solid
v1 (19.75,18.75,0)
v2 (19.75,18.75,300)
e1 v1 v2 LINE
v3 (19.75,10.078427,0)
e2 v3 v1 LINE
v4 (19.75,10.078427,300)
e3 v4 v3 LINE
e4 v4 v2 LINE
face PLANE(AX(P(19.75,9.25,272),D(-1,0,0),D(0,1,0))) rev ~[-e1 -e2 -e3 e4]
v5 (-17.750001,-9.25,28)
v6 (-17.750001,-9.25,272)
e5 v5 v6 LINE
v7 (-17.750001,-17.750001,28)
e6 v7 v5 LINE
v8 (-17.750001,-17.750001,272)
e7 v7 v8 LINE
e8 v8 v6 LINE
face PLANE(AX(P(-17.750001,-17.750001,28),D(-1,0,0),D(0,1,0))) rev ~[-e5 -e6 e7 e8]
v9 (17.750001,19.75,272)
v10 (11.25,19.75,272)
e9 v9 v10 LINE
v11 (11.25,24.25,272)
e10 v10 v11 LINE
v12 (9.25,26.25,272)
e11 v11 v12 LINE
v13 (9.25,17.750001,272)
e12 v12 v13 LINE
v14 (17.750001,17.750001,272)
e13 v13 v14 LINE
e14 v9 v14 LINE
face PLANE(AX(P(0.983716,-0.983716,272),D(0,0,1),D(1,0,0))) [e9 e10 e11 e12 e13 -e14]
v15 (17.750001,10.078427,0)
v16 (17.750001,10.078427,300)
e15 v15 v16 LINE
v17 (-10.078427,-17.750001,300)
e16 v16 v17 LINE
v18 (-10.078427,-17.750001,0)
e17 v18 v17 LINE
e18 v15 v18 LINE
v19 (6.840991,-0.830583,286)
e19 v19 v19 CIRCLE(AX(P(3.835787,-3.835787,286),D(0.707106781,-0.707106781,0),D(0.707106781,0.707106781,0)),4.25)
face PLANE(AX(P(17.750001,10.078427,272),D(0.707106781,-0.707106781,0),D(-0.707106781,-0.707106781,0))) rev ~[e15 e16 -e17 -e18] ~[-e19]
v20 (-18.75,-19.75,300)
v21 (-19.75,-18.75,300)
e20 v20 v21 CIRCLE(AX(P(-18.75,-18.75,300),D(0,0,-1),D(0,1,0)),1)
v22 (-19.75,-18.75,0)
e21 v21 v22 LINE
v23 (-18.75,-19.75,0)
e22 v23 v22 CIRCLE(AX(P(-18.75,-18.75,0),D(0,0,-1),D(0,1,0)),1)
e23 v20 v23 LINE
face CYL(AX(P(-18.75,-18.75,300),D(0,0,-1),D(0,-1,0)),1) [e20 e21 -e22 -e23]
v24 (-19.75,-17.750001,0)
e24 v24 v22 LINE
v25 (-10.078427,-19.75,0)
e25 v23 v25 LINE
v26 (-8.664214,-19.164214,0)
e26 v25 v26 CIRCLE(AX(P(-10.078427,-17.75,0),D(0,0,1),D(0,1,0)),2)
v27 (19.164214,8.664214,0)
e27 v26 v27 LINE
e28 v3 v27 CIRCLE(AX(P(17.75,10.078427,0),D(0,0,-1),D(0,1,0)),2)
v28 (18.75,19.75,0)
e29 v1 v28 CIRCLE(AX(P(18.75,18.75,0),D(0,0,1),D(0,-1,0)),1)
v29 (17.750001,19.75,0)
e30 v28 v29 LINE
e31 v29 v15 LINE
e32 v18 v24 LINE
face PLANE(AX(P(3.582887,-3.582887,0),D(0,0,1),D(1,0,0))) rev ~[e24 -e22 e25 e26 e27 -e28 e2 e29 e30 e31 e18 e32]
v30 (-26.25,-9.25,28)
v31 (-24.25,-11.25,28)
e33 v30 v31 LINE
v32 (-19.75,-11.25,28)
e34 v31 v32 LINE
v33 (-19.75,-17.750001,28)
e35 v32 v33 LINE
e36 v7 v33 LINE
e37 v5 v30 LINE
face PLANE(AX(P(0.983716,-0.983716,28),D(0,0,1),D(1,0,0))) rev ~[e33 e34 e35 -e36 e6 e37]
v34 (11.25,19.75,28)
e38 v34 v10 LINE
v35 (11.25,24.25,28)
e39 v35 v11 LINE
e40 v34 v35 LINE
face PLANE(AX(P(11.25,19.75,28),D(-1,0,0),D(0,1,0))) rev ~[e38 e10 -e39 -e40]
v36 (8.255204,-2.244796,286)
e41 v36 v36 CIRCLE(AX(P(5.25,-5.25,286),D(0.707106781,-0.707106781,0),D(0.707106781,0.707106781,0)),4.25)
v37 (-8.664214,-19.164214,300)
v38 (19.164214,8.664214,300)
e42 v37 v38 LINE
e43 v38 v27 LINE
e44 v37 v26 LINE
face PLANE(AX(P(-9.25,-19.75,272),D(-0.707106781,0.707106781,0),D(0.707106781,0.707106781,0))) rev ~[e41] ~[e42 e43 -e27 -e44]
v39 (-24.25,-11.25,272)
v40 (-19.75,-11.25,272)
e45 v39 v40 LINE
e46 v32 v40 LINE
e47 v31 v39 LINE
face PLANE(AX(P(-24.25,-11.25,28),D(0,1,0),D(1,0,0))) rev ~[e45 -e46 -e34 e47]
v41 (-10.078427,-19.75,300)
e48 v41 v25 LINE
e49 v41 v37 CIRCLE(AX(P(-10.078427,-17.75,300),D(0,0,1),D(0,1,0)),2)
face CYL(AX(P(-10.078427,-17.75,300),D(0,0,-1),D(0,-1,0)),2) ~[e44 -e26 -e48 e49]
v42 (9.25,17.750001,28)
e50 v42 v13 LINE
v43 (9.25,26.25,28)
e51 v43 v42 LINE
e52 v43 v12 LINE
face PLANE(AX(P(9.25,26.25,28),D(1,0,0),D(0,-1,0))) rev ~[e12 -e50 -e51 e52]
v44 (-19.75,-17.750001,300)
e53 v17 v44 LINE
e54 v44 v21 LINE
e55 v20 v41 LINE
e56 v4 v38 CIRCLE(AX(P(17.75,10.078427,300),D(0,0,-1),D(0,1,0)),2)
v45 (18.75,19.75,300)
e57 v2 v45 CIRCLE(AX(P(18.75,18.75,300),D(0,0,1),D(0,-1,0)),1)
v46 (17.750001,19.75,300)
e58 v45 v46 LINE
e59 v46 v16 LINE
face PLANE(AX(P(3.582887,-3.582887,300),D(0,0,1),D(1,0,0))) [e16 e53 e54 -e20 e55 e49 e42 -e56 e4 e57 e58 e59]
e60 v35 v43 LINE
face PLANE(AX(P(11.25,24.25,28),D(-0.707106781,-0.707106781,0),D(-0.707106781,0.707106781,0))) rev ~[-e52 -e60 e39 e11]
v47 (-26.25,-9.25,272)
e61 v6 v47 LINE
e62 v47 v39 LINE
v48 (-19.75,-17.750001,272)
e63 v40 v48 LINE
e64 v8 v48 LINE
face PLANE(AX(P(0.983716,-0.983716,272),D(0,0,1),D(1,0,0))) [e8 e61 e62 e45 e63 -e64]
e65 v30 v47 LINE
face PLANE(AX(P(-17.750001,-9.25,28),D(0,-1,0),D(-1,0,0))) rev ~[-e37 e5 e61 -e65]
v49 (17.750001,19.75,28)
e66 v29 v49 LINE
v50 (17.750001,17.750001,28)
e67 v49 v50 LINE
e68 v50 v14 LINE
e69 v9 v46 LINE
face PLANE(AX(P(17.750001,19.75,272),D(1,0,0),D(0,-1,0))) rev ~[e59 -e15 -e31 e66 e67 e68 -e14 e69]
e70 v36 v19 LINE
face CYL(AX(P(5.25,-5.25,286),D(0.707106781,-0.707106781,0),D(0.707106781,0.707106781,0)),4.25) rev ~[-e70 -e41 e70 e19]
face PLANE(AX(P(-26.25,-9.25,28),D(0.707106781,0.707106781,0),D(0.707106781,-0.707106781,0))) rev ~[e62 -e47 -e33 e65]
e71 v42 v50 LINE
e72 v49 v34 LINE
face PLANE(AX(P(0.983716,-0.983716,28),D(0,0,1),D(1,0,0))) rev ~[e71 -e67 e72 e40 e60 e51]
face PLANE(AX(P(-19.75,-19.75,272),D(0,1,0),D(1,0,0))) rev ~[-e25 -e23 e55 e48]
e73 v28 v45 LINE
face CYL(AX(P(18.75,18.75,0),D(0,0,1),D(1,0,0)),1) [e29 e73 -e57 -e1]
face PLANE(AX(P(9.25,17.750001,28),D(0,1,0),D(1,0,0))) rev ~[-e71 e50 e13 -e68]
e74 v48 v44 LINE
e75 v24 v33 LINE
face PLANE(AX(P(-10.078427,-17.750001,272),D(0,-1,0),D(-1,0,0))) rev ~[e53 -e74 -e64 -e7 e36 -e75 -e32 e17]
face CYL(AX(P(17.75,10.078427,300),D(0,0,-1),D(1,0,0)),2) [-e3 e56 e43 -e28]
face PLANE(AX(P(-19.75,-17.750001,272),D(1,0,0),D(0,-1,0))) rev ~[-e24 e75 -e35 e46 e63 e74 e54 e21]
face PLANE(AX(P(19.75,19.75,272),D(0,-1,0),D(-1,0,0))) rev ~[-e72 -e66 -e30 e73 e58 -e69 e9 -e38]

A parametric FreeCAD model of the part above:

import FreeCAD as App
import Part
import Sketcher
Q = App.Units.Quantity


def edges_at(feature, points):
    """Names of the edges that pass closest to the given points."""
    edges = feature.Shape.Edges
    near = lambda p: min(range(len(edges)), key=lambda i: edges[i].distToShape(Part.Vertex(*p))[0])
    return sorted({f"Edge{near(p) + 1}" for p in points})


def add_polygon(sketch, points):
    """Adds a closed chain of lines whose ends are joined by coincident constraints."""
    first, n = sketch.GeometryCount, len(points)
    for a, b in zip(points, points[1:] + points[:1]):
        sketch.addGeometry(Part.LineSegment(App.Vector(*a, 0), App.Vector(*b, 0)), False)
    for i in range(n):
        sketch.addConstraint(Sketcher.Constraint("Coincident", first + i, 2, first + (i + 1) % n, 1))

doc = App.newDocument("Part")
params = doc.addObject("Spreadsheet::Sheet", "Params")
for row, (alias, value) in enumerate([
    ("sketch1_width", "1.999999 mm"),
    ("sketch1_width2", "10.5 mm"),
    ("pad1_length", "28 mm"),
    ("sketch2_width", "10.5 mm"),
    ("sketch2_width2", "8.5 mm"),
    ("sketch2_width3", "4.5 mm"),
    ("pad2_length", "244 mm"),
    ("sketch3_width", "1.999999 mm"),
    ("sketch3_width2", "10.5 mm"),
    ("pad3_length", "28 mm"),
    ("fillet_radius", "2 mm"),
    ("fillet2_radius", "1 mm"),
    ("sketch4_diameter", "8.5 mm"),
    ("pocket1_length", "25 mm"),
], start=1):
    params.set(f"A{row}", alias)
    params.set(f"B{row}", "=" + value)
    params.setAlias(f"B{row}", alias)

body = doc.addObject("PartDesign::Body", "Body")

# Sketch on XY plane
sketch1 = body.newObject("Sketcher::SketchObject", "Sketch")
sketch1.AttachmentSupport = (doc.getObject("XY_Plane"), [""])
sketch1.MapMode = "FlatFace"
add_polygon(sketch1, [(-19.8, -17.8), (-19.8, -19.8), (-9.2, -19.8), (19.8, 9.2), (19.8, 19.8), (17.8, 19.8), (17.8, 10.1), (-10.1, -17.8)])  # lines 0-7
sketch1.addConstraint([
    Sketcher.Constraint("Vertical", 0),
    Sketcher.Constraint("Horizontal", 1),
    Sketcher.Constraint("Vertical", 3),
    Sketcher.Constraint("Horizontal", 4),
    Sketcher.Constraint("Vertical", 5),
    Sketcher.Constraint("Horizontal", 7),
    Sketcher.Constraint("Symmetric", 0, 2, 3, 2, -1, 1),
    Sketcher.Constraint("Parallel", 2, 6),
    Sketcher.Constraint("Equal", 4, 0),
    Sketcher.Constraint("Equal", 1, 3),
    Sketcher.Constraint("Equal", 7, 5),
    Sketcher.Constraint("DistanceX", 4, 2, 4, 1, Q("1.999999 mm")),
    Sketcher.Constraint("DistanceX", 1, 1, 1, 2, Q("10.5 mm")),
    Sketcher.Constraint("DistanceX", 1, 2, 2, 2, Q("29 mm")),
    Sketcher.Constraint("Distance", 6, Q("39.35534 mm")),
])
sketch1.setExpression("Constraints[19]", "Params.sketch1_width")
sketch1.setExpression("Constraints[20]", "Params.sketch1_width2")
pad1 = body.newObject("PartDesign::Pad", "Pad")
pad1.Profile = sketch1
pad1.setExpression("Length", "Params.pad1_length")

# Sketch on XY plane
sketch2 = body.newObject("Sketcher::SketchObject", "Sketch001")
sketch2.AttachmentSupport = (doc.getObject("XY_Plane"), [""])
sketch2.MapMode = "FlatFace"
sketch2.AttachmentOffset = App.Placement(App.Vector(0, 0, 28), App.Rotation())
add_polygon(sketch2, [(-19.8, -19.8), (-9.2, -19.8), (19.8, 9.2), (19.8, 19.8), (11.2, 19.8), (11.2, 24.2), (9.2, 26.2), (9.2, 17.8), (17.8, 17.8), (17.8, 10.1), (-10.1, -17.8), (-17.8, -17.8), (-17.8, -9.2), (-26.2, -9.2), (-24.2, -11.2), (-19.8, -11.2)])  # lines 0-15
sketch2.addConstraint([
    Sketcher.Constraint("Horizontal", 0),
    Sketcher.Constraint("Vertical", 2),
    Sketcher.Constraint("Horizontal", 3),
    Sketcher.Constraint("Vertical", 4),
    Sketcher.Constraint("Vertical", 6),
    Sketcher.Constraint("Horizontal", 7),
    Sketcher.Constraint("Vertical", 8),
    Sketcher.Constraint("Horizontal", 10),
    Sketcher.Constraint("Vertical", 11),
    Sketcher.Constraint("Horizontal", 12),
    Sketcher.Constraint("Horizontal", 14),
    Sketcher.Constraint("Vertical", 15),
    Sketcher.Constraint("Symmetric", 7, 2, 10, 2, -1, 1),
    Sketcher.Constraint("Symmetric", 2, 2, 15, 2, -1, 1),
    Sketcher.Constraint("Perpendicular", 1, 5),
    Sketcher.Constraint("Perpendicular", 5, 9),
    Sketcher.Constraint("Perpendicular", 9, 13),
    Sketcher.Constraint("Equal", 3, 7),
    Sketcher.Constraint("Equal", 3, 12),
    Sketcher.Constraint("Equal", 0, 2),
    Sketcher.Constraint("Equal", 14, 4),
    Sketcher.Constraint("Equal", 12, 6),
    Sketcher.Constraint("Equal", 10, 8),
    Sketcher.Constraint("Equal", 7, 11),
    Sketcher.Constraint("Equal", 11, 15),
    Sketcher.Constraint("DistanceX", 0, 1, 0, 2, Q("10.5 mm")),
    Sketcher.Constraint("DistanceX", 3, 2, 3, 1, Q("8.5 mm")),
    Sketcher.Constraint("DistanceX", 14, 1, 14, 2, Q("4.5 mm")),
    Sketcher.Constraint("DistanceX", 0, 2, 1, 2, Q("29 mm")),
    Sketcher.Constraint("Distance", 9, Q("39.35534 mm")),
])
sketch2.setExpression("Constraints[41]", "Params.sketch2_width")
sketch2.setExpression("Constraints[42]", "Params.sketch2_width2")
sketch2.setExpression("Constraints[43]", "Params.sketch2_width3")
pad2 = body.newObject("PartDesign::Pad", "Pad001")
pad2.Profile = sketch2
pad2.setExpression("Length", "Params.pad2_length")

# Sketch on XY plane
sketch3 = body.newObject("Sketcher::SketchObject", "Sketch002")
sketch3.AttachmentSupport = (doc.getObject("XY_Plane"), [""])
sketch3.MapMode = "FlatFace"
sketch3.AttachmentOffset = App.Placement(App.Vector(0, 0, 272), App.Rotation())
add_polygon(sketch3, [(19.8, 9.2), (19.8, 19.8), (17.8, 19.8), (17.8, 10.1), (-10.1, -17.8), (-19.8, -17.8), (-19.8, -19.8), (-9.2, -19.8)])  # lines 0-7
sketch3.addConstraint([
    Sketcher.Constraint("Vertical", 0),
    Sketcher.Constraint("Horizontal", 1),
    Sketcher.Constraint("Vertical", 2),
    Sketcher.Constraint("Horizontal", 4),
    Sketcher.Constraint("Vertical", 5),
    Sketcher.Constraint("Horizontal", 6),
    Sketcher.Constraint("Symmetric", 0, 2, 5, 2, -1, 1),
    Sketcher.Constraint("Parallel", 3, 7),
    Sketcher.Constraint("Equal", 6, 0),
    Sketcher.Constraint("Equal", 4, 2),
    Sketcher.Constraint("Equal", 1, 5),
    Sketcher.Constraint("DistanceX", 1, 2, 1, 1, Q("1.999999 mm")),
    Sketcher.Constraint("DistanceX", 6, 1, 6, 2, Q("10.5 mm")),
    Sketcher.Constraint("DistanceX", 6, 2, 2, 2, Q("27.000001 mm")),
    Sketcher.Constraint("Distance", 3, Q("39.35534 mm")),
])
sketch3.setExpression("Constraints[19]", "Params.sketch3_width")
sketch3.setExpression("Constraints[20]", "Params.sketch3_width2")
pad3 = body.newObject("PartDesign::Pad", "Pad002")
pad3.Profile = sketch3
pad3.setExpression("Length", "Params.pad3_length")
doc.recompute()

fillet = body.newObject("PartDesign::Fillet", "Fillet")
fillet.Base = (pad3, edges_at(pad3, [(19.75, 9.25, 150), (-9.25, -19.75, 150)]))
fillet.setExpression("Radius", "Params.fillet_radius")
doc.recompute()

fillet2 = body.newObject("PartDesign::Fillet", "Fillet001")
fillet2.Base = (fillet, edges_at(fillet, [(-19.75, -19.75, 150), (19.75, 19.75, 150)]))
fillet2.setExpression("Radius", "Params.fillet2_radius")

# Sketch on an angled plane
sketch4 = body.newObject("Sketcher::SketchObject", "Sketch003")
sketch4.Placement = App.Placement(App.Vector(5.25, -5.25, 0), App.Rotation(App.Vector(0.707106781, 0.707106781, 0), App.Vector(0, 0, 0.999999999), App.Vector(0.707106781, -0.707106781, 0), "ZXY"))
sketch4.addGeometry(Part.Circle(App.Vector(0, 286, 0), App.Vector(0, 0, 1), 4.2), False)
sketch4.addConstraint([
    Sketcher.Constraint("PointOnObject", 0, 3, -2),
    Sketcher.Constraint("Diameter", 0, Q("8.5 mm")),
    Sketcher.Constraint("DistanceY", -1, 1, 0, 3, Q("286 mm")),
])
sketch4.setExpression("Constraints[1]", "Params.sketch4_diameter")
pocket1 = body.newObject("PartDesign::Pocket", "Pocket")
pocket1.Profile = sketch4
pocket1.setExpression("Length", "Params.pocket1_length")

doc.recompute()
